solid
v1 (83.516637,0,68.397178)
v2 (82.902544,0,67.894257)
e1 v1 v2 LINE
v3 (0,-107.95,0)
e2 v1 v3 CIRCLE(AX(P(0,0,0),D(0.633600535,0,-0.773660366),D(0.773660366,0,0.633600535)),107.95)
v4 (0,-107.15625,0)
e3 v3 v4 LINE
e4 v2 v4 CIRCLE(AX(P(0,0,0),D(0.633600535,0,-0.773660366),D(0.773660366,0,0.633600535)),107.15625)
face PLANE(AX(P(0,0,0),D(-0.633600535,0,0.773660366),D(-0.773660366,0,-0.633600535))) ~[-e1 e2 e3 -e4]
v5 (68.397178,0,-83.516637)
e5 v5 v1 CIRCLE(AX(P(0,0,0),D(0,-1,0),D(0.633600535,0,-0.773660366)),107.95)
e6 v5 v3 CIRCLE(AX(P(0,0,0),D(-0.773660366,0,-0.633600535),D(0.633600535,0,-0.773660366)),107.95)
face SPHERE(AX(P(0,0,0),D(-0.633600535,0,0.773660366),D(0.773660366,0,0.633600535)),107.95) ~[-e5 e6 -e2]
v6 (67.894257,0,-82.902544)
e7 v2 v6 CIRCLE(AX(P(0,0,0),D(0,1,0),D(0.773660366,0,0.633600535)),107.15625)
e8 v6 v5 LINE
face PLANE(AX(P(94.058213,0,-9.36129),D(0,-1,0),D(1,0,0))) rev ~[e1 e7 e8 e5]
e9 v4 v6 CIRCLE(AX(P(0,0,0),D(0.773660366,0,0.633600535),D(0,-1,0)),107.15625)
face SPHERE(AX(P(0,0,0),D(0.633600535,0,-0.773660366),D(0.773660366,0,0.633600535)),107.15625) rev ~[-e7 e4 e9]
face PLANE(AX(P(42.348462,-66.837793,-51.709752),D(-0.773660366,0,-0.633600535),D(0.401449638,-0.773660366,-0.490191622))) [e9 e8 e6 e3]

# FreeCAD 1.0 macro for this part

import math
import FreeCAD as App
import Part
import Sketcher
Q = App.Units.Quantity

doc = App.newDocument("Part")
body = doc.addObject("PartDesign::Body", "Body")

sketch1 = body.newObject("Sketcher::SketchObject", "Sketch")
sketch1.AttachmentSupport = (doc.getObject("XZ_Plane"), [""])
sketch1.MapMode = "FlatFace"
sketch1.addGeometry([
    Part.LineSegment(App.Vector(67.9, -82.9, 0), App.Vector(68.4, -83.5, 0)),
    Part.ArcOfCircle(Part.Circle(App.Vector(0, 0, 0), App.Vector(0, 0, 1), 108), math.radians(-51), math.radians(39)),
    Part.LineSegment(App.Vector(83.5, 68.4, 0), App.Vector(82.9, 67.9, 0)),
    Part.ArcOfCircle(Part.Circle(App.Vector(0, 0, 0), App.Vector(0, 0, 1), 107.2), math.radians(-51), math.radians(39)),
], False)
sketch1.addGeometry(Part.LineSegment(App.Vector(0, 0, 0), App.Vector(68.4, -83.5, 0)), True)
sketch1.addConstraint([
    Sketcher.Constraint("Coincident", 0, 2, 1, 1),
    Sketcher.Constraint("Coincident", 1, 2, 2, 1),
    Sketcher.Constraint("Coincident", 2, 2, 3, 2),
    Sketcher.Constraint("Coincident", 3, 1, 0, 1),
    Sketcher.Constraint("Coincident", 1, 3, -1, 1),
    Sketcher.Constraint("Coincident", 3, 3, -1, 1),
    Sketcher.Constraint("Coincident", 4, 1, -1, 1),
    Sketcher.Constraint("Coincident", 4, 2, 0, 2),
    Sketcher.Constraint("Perpendicular", 0, 2),
    Sketcher.Constraint("Perpendicular", 2, 4),
    Sketcher.Constraint("Radius", 1, Q("4.25 in")),
    Sketcher.Constraint("Radius", 3, Q("4.21875 in")),
    Sketcher.Constraint("DistanceY", 3, 1, 2, 2, Q("150.796801 mm")),
    Sketcher.Constraint("DistanceX", 0, 2, 1, 2, Q("15.119459 mm")),
])
revolution = body.newObject("PartDesign::Revolution", "Revolution")
revolution.Profile = sketch1
revolution.ReferenceAxis = (sketch1, ["Axis0"])
revolution.Angle = 90

doc.recompute()
